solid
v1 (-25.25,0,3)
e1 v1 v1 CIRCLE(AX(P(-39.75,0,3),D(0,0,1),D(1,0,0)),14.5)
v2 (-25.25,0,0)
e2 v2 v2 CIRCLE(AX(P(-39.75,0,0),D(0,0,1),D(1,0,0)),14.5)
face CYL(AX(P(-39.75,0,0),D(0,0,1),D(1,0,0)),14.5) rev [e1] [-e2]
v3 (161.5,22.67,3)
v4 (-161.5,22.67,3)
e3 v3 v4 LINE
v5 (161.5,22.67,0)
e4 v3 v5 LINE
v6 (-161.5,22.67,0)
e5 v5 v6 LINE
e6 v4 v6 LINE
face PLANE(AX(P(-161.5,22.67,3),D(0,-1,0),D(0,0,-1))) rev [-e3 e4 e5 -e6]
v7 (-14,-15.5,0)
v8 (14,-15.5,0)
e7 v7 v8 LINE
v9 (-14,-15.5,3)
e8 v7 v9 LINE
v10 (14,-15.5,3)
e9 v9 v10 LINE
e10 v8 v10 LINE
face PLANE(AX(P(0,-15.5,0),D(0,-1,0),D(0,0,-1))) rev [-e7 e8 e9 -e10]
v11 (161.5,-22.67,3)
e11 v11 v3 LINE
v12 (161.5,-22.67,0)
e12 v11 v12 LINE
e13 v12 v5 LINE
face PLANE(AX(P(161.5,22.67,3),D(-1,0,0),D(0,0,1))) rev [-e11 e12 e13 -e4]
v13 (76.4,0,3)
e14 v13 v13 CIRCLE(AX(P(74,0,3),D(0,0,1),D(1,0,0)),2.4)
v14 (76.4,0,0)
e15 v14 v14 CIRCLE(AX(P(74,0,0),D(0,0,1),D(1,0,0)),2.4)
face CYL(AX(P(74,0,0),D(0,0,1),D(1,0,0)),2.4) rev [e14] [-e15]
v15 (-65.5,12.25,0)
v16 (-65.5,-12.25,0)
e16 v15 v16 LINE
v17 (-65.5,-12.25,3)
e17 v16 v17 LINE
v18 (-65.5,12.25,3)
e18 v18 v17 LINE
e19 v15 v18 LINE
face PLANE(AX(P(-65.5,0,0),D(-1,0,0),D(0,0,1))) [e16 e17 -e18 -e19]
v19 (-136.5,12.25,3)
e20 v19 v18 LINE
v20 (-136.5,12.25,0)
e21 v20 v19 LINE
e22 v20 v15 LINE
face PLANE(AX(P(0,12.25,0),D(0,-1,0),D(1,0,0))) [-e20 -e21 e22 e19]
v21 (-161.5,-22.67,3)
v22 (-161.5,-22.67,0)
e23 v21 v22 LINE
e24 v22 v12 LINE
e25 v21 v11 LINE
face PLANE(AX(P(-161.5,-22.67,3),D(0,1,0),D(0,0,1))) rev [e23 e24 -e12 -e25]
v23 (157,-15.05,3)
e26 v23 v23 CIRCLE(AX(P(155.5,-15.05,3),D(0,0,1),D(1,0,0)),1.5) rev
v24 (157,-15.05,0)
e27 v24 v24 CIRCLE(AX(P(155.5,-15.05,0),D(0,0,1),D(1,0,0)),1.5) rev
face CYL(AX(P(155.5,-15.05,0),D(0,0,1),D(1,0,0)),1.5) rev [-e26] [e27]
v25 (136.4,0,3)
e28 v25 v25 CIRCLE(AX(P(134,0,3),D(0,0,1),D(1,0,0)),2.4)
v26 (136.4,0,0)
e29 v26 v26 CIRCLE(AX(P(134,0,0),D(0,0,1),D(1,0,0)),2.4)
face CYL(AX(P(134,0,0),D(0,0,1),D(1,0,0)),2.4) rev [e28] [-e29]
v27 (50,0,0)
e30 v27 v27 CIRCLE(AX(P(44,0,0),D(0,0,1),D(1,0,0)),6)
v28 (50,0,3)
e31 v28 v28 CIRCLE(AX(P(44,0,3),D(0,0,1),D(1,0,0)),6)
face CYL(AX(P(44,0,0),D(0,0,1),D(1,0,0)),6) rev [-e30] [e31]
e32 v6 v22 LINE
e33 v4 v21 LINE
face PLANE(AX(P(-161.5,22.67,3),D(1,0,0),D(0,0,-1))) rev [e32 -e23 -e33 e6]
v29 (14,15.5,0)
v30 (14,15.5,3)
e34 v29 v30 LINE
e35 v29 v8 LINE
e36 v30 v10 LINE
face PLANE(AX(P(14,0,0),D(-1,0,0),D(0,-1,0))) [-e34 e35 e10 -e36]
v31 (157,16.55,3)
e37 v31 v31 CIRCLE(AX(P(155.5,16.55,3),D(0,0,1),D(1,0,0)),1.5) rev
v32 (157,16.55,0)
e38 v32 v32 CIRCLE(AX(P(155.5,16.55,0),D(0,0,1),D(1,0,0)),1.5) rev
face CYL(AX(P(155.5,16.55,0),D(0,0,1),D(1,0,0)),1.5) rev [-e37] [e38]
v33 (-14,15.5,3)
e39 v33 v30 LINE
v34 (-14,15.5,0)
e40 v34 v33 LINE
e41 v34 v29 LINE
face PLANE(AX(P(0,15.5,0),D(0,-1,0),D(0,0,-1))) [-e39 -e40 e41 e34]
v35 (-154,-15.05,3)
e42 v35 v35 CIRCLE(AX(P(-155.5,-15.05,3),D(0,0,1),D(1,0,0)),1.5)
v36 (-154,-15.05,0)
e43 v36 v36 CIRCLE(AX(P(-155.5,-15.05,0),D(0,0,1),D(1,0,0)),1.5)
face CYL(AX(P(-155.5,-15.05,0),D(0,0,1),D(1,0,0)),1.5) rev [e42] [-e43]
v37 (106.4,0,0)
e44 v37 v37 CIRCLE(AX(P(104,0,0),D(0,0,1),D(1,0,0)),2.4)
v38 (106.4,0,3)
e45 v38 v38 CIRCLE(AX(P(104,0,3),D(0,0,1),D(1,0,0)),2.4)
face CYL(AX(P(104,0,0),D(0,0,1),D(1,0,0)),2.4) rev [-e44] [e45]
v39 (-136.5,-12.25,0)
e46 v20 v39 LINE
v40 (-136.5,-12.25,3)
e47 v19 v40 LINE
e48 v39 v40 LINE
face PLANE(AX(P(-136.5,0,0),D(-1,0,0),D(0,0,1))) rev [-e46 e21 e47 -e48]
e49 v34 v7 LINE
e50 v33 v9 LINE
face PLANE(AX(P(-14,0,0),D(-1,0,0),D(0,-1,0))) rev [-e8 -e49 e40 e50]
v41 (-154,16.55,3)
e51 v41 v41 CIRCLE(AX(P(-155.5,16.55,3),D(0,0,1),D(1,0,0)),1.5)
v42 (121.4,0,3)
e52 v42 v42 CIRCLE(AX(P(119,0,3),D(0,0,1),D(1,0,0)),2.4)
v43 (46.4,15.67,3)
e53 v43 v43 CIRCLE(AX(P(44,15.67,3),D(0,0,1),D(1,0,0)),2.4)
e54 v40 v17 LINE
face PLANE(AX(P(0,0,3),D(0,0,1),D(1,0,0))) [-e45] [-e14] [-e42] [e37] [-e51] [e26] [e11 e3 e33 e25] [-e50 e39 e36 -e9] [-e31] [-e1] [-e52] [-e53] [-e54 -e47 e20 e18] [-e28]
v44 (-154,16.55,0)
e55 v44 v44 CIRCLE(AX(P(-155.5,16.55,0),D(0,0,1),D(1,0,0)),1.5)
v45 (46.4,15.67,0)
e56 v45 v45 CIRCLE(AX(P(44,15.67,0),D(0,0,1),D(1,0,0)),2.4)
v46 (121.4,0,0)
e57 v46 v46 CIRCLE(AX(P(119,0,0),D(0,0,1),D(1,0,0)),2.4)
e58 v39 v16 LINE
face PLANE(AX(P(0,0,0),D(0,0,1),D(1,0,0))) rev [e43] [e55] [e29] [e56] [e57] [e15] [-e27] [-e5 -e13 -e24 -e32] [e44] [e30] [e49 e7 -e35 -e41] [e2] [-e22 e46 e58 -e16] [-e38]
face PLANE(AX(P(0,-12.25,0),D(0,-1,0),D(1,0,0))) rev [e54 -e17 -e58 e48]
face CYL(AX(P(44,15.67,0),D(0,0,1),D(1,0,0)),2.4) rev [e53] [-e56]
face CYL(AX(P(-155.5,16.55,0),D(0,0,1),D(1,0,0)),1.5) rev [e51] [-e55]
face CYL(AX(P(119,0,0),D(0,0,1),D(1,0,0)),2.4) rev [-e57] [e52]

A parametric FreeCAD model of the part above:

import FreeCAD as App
import Part
import Sketcher
from FreeCAD import Vector

doc = App.newDocument("Part")
body = doc.addObject("PartDesign::Body", "Body")

sketch1 = body.newObject("Sketcher::SketchObject", "Sketch")
sketch1.AttachmentSupport = (doc.getObject("XY_Plane"), [""])
sketch1.MapMode = "FlatFace"
sketch1.addGeometry([
    Part.LineSegment(Vector(-162, 23, 0), Vector(-162, -23, 0)),
    Part.LineSegment(Vector(-162, -23, 0), Vector(162, -23, 0)),
    Part.LineSegment(Vector(162, -23, 0), Vector(162, 23, 0)),
    Part.LineSegment(Vector(162, 23, 0), Vector(-162, 23, 0)),
], False)
sketch1.addConstraint([
    Sketcher.Constraint("Coincident", 0, 2, 1, 1),
    Sketcher.Constraint("Coincident", 1, 2, 2, 1),
    Sketcher.Constraint("Coincident", 2, 2, 3, 1),
    Sketcher.Constraint("Coincident", 3, 2, 0, 1),
    Sketcher.Constraint("Vertical", 0),
    Sketcher.Constraint("Horizontal", 1),
    Sketcher.Constraint("Vertical", 2),
    Sketcher.Constraint("Horizontal", 3),
    Sketcher.Constraint("Symmetric", 0, 2, 2, 2, -1, 1),
    Sketcher.Constraint("DistanceX", 1, 1, 1, 2, 323.0),
    Sketcher.Constraint("DistanceY", 0, 2, 0, 1, 45.34),
])
pad1 = body.newObject("PartDesign::Pad", "Pad")
pad1.Profile = sketch1
pad1.Length = 3

sketch2 = body.newObject("Sketcher::SketchObject", "Sketch001")
sketch2.AttachmentSupport = (doc.getObject("XY_Plane"), [""])
sketch2.MapMode = "FlatFace"
sketch2.AttachmentOffset = App.Placement(Vector(0, 0, 3), App.Rotation())
sketch2.addGeometry([
    Part.Circle(Vector(44, 0, 0), Vector(0, 0, 1), 6),
    Part.Circle(Vector(74, 0, 0), Vector(0, 0, 1), 2.4),
    Part.Circle(Vector(44, 15.7, 0), Vector(0, 0, 1), 2.4),
    Part.Circle(Vector(134, 0, 0), Vector(0, 0, 1), 2.4),
    Part.Circle(Vector(119, 0, 0), Vector(0, 0, 1), 2.4),
    Part.Circle(Vector(104, 0, 0), Vector(0, 0, 1), 2.4),
    Part.Circle(Vector(-39.8, 0, 0), Vector(0, 0, 1), 14.5),
    Part.Circle(Vector(-155.5, 16.6, 0), Vector(0, 0, 1), 1.5),
    Part.Circle(Vector(-155.5, -15.1, 0), Vector(0, 0, 1), 1.5),
    Part.Circle(Vector(155.5, -15.1, 0), Vector(0, 0, 1), 1.5),
    Part.Circle(Vector(155.5, 16.6, 0), Vector(0, 0, 1), 1.5),
    Part.LineSegment(Vector(-136.5, 12.2, 0), Vector(-136.5, -12.2, 0)),
    Part.LineSegment(Vector(-136.5, -12.2, 0), Vector(-65.5, -12.2, 0)),
    Part.LineSegment(Vector(-65.5, -12.2, 0), Vector(-65.5, 12.2, 0)),
    Part.LineSegment(Vector(-65.5, 12.2, 0), Vector(-136.5, 12.2, 0)),
    Part.LineSegment(Vector(-14, 15.5, 0), Vector(-14, -15.5, 0)),
    Part.LineSegment(Vector(-14, -15.5, 0), Vector(14, -15.5, 0)),
    Part.LineSegment(Vector(14, -15.5, 0), Vector(14, 15.5, 0)),
    Part.LineSegment(Vector(14, 15.5, 0), Vector(-14, 15.5, 0)),
], False)
sketch2.addConstraint([
    Sketcher.Constraint("Coincident", 11, 2, 12, 1),
    Sketcher.Constraint("Coincident", 12, 2, 13, 1),
    Sketcher.Constraint("Coincident", 13, 2, 14, 1),
    Sketcher.Constraint("Coincident", 14, 2, 11, 1),
    Sketcher.Constraint("Coincident", 15, 2, 16, 1),
    Sketcher.Constraint("Coincident", 16, 2, 17, 1),
    Sketcher.Constraint("Coincident", 17, 2, 18, 1),
    Sketcher.Constraint("Coincident", 18, 2, 15, 1),
    Sketcher.Constraint("Vertical", 11),
    Sketcher.Constraint("Horizontal", 12),
    Sketcher.Constraint("Vertical", 13),
    Sketcher.Constraint("Horizontal", 14),
    Sketcher.Constraint("Vertical", 15),
    Sketcher.Constraint("Horizontal", 16),
    Sketcher.Constraint("Vertical", 17),
    Sketcher.Constraint("Horizontal", 18),
    Sketcher.Constraint("Equal", 1, 2),
    Sketcher.Constraint("Equal", 2, 3),
    Sketcher.Constraint("Equal", 3, 4),
    Sketcher.Constraint("Equal", 4, 5),
    Sketcher.Constraint("Equal", 7, 8),
    Sketcher.Constraint("Equal", 8, 9),
    Sketcher.Constraint("Equal", 9, 10),
    Sketcher.Constraint("Symmetric", 15, 2, 17, 2, -1, 1),
    Sketcher.Constraint("Symmetric", 8, 3, 9, 3, -2),
    Sketcher.Constraint("Symmetric", 7, 3, 10, 3, -2),
    Sketcher.Constraint("PointOnObject", 0, 3, -1),
    Sketcher.Constraint("PointOnObject", 1, 3, -1),
    Sketcher.Constraint("PointOnObject", 3, 3, -1),
    Sketcher.Constraint("PointOnObject", 4, 3, -1),
    Sketcher.Constraint("PointOnObject", 5, 3, -1),
    Sketcher.Constraint("PointOnObject", 6, 3, -1),
    Sketcher.Constraint("Vertical", 0, 3, 2, 3),
    Sketcher.Constraint("Vertical", 7, 3, 8, 3),
    Sketcher.Constraint("Diameter", 0, 12.0),
    Sketcher.Constraint("Diameter", 6, 29.0),
    Sketcher.Constraint("Diameter", 7, 3.0),
    Sketcher.Constraint("Diameter", 1, 4.8),
    Sketcher.Constraint("DistanceX", 12, 1, 12, 2, 71.0),
    Sketcher.Constraint("DistanceX", 16, 1, 16, 2, 28.0),
    Sketcher.Constraint("DistanceY", 15, 2, 15, 1, 31.0),
    Sketcher.Constraint("DistanceY", 11, 2, 11, 1, 24.5),
    Sketcher.Constraint("DistanceX", -1, 1, 0, 3, 44.0),
    Sketcher.Constraint("DistanceX", -1, 1, 1, 3, 74.0),
    Sketcher.Constraint("DistanceX", -1, 1, 3, 3, 134.0),
    Sketcher.Constraint("DistanceX", -1, 1, 4, 3, 119.0),
    Sketcher.Constraint("DistanceX", -1, 1, 5, 3, 104.0),
    Sketcher.Constraint("DistanceX", 8, 3, 11, 2, 19.0),
    Sketcher.Constraint("DistanceX", 7, 3, -1, 1, 155.5),
    Sketcher.Constraint("DistanceY", 8, 3, 7, 3, 31.6),
    Sketcher.Constraint("DistanceY", 8, 3, 11, 2, 2.8),
    Sketcher.Constraint("DistanceY", -1, 1, 2, 3, 15.67),
    Sketcher.Constraint("DistanceX", 6, 3, -1, 1, 39.75),
    Sketcher.Constraint("DistanceY", -1, 1, 7, 3, 16.55),
])
pocket1 = body.newObject("PartDesign::Pocket", "Pocket")
pocket1.Profile = sketch2
pocket1.Type = "ThroughAll"
pocket1.Midplane = True

doc.recompute()
